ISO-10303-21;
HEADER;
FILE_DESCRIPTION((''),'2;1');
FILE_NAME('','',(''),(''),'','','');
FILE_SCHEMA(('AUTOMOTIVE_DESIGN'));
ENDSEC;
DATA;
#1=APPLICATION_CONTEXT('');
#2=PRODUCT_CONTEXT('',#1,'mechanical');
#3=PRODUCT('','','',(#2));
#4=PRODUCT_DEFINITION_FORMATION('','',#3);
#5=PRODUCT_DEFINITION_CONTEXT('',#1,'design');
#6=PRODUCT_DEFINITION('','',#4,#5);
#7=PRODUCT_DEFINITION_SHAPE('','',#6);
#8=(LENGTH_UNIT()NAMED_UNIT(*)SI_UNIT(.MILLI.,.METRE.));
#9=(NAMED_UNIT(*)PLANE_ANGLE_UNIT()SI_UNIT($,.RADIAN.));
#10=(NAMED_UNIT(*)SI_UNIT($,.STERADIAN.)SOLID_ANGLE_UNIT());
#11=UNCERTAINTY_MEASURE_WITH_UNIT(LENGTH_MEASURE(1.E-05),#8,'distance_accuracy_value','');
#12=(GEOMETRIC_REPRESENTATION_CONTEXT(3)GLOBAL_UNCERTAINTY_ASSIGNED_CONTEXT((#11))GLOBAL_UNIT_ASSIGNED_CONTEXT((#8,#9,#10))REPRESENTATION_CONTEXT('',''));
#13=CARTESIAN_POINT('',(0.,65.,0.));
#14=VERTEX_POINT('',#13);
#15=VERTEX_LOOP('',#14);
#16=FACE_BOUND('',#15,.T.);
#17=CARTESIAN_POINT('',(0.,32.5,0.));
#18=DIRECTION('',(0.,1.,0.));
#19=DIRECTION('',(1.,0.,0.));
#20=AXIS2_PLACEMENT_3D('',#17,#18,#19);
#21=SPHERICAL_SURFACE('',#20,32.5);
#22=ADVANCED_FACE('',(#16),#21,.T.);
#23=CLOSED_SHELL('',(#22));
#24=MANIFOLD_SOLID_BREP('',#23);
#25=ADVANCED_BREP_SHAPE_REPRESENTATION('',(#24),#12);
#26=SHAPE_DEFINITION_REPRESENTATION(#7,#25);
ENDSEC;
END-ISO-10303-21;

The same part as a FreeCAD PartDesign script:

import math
import FreeCAD as App
import Part
import Sketcher
Q = App.Units.Quantity

doc = App.newDocument("Part")
body = doc.addObject("PartDesign::Body", "Body")

# Sketch on XY plane
sketch1 = doc.addObject("Sketcher::SketchObject", "Sketch")
body.addObject(sketch1)
sketch1.AttachmentSupport = (doc.XY_Plane, [""])
sketch1.MapMode = "FlatFace"
sketch1.addGeometry([
    Part.LineSegment(App.Vector(0, 65, 0), App.Vector(0, 0, 0)),
    Part.ArcOfCircle(Part.Circle(App.Vector(0, 32, 0), App.Vector(0, 0, 1), 32), math.radians(-90), math.radians(90)),
], False)
sketch1.addConstraint([
    Sketcher.Constraint("Coincident", 0, 1, 1, 2),
    Sketcher.Constraint("Coincident", 1, 1, 0, 2),
    Sketcher.Constraint("Vertical", 0),
    Sketcher.Constraint("Coincident", 1, 1, -1, 1),
    Sketcher.Constraint("PointOnObject", 1, 3, -2),
    Sketcher.Constraint("Radius", 1, Q("32.5 mm")),
])
revolution = doc.addObject("PartDesign::Revolution", "Revolution")
body.addObject(revolution)
revolution.Profile = sketch1
revolution.ReferenceAxis = (sketch1, ["V_Axis"])
revolution.Angle = 360

doc.recompute()
